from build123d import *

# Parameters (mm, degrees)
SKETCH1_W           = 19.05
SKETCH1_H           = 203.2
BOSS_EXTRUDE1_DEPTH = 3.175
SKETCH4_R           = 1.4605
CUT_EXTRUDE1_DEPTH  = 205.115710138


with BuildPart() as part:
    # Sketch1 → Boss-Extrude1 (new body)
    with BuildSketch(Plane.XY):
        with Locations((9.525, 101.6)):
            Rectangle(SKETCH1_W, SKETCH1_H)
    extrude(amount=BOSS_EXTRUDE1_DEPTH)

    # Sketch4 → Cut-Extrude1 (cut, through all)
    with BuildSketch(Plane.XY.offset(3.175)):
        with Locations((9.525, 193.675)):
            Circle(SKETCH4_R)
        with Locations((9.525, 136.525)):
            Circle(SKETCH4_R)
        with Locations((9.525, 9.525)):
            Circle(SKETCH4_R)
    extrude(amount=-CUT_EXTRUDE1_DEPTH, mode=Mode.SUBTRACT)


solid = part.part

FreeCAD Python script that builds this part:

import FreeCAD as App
import Part
import Sketcher
Q = App.Units.Quantity

doc = App.newDocument("Part")
body = doc.addObject("PartDesign::Body", "Body")

sketch1 = body.newObject("Sketcher::SketchObject", "Sketch")
sketch1.AttachmentSupport = (doc.getObject("XY_Plane"), [""])
sketch1.MapMode = "FlatFace"
sketch1.addGeometry([
    Part.LineSegment(App.Vector(0, 203, 0), App.Vector(0, 0, 0)),
    Part.LineSegment(App.Vector(0, 0, 0), App.Vector(19, 0, 0)),
    Part.LineSegment(App.Vector(19, 0, 0), App.Vector(19, 203, 0)),
    Part.LineSegment(App.Vector(19, 203, 0), App.Vector(0, 203, 0)),
], False)
sketch1.addConstraint([
    Sketcher.Constraint("Coincident", 0, 2, 1, 1),
    Sketcher.Constraint("Coincident", 1, 2, 2, 1),
    Sketcher.Constraint("Coincident", 2, 2, 3, 1),
    Sketcher.Constraint("Coincident", 3, 2, 0, 1),
    Sketcher.Constraint("Vertical", 0),
    Sketcher.Constraint("Horizontal", 1),
    Sketcher.Constraint("Vertical", 2),
    Sketcher.Constraint("Horizontal", 3),
    Sketcher.Constraint("Coincident", 0, 2, -1, 1),
    Sketcher.Constraint("DistanceY", 0, 2, 0, 1, Q("8 in")),
    Sketcher.Constraint("DistanceX", 1, 1, 1, 2, Q("0.75 in")),
])
pad1 = body.newObject("PartDesign::Pad", "Pad")
pad1.Profile = sketch1
pad1.Length = Q("0.125 in")

sketch2 = body.newObject("Sketcher::SketchObject", "Sketch001")
sketch2.AttachmentSupport = (doc.getObject("XY_Plane"), [""])
sketch2.MapMode = "FlatFace"
sketch2.AttachmentOffset = App.Placement(App.Vector(0, 0, 0.125 * 25.4), App.Rotation())
sketch2.addGeometry([
    Part.Circle(App.Vector(9.5, 193.7, 0), App.Vector(0, 0, 1), 1.5),
    Part.Circle(App.Vector(9.5, 136.5, 0), App.Vector(0, 0, 1), 1.5),
    Part.Circle(App.Vector(9.5, 9.5, 0), App.Vector(0, 0, 1), 1.5),
], False)
sketch2.addConstraint([
    Sketcher.Constraint("Equal", 0, 1),
    Sketcher.Constraint("Equal", 1, 2),
    Sketcher.Constraint("Vertical", 0, 3, 1, 3),
    Sketcher.Constraint("Vertical", 1, 3, 2, 3),
    Sketcher.Constraint("Diameter", 0, Q("0.115 in")),
    Sketcher.Constraint("DistanceY", 2, 3, 1, 3, Q("5 in")),
    Sketcher.Constraint("DistanceY", 1, 3, 0, 3, Q("2.25 in")),
    Sketcher.Constraint("DistanceX", -1, 1, 0, 3, Q("0.375 in")),
    Sketcher.Constraint("DistanceY", -1, 1, 0, 3, Q("7.625 in")),
])
pocket1 = body.newObject("PartDesign::Pocket", "Pocket")
pocket1.Profile = sketch2
pocket1.Type = "ThroughAll"

doc.recompute()
